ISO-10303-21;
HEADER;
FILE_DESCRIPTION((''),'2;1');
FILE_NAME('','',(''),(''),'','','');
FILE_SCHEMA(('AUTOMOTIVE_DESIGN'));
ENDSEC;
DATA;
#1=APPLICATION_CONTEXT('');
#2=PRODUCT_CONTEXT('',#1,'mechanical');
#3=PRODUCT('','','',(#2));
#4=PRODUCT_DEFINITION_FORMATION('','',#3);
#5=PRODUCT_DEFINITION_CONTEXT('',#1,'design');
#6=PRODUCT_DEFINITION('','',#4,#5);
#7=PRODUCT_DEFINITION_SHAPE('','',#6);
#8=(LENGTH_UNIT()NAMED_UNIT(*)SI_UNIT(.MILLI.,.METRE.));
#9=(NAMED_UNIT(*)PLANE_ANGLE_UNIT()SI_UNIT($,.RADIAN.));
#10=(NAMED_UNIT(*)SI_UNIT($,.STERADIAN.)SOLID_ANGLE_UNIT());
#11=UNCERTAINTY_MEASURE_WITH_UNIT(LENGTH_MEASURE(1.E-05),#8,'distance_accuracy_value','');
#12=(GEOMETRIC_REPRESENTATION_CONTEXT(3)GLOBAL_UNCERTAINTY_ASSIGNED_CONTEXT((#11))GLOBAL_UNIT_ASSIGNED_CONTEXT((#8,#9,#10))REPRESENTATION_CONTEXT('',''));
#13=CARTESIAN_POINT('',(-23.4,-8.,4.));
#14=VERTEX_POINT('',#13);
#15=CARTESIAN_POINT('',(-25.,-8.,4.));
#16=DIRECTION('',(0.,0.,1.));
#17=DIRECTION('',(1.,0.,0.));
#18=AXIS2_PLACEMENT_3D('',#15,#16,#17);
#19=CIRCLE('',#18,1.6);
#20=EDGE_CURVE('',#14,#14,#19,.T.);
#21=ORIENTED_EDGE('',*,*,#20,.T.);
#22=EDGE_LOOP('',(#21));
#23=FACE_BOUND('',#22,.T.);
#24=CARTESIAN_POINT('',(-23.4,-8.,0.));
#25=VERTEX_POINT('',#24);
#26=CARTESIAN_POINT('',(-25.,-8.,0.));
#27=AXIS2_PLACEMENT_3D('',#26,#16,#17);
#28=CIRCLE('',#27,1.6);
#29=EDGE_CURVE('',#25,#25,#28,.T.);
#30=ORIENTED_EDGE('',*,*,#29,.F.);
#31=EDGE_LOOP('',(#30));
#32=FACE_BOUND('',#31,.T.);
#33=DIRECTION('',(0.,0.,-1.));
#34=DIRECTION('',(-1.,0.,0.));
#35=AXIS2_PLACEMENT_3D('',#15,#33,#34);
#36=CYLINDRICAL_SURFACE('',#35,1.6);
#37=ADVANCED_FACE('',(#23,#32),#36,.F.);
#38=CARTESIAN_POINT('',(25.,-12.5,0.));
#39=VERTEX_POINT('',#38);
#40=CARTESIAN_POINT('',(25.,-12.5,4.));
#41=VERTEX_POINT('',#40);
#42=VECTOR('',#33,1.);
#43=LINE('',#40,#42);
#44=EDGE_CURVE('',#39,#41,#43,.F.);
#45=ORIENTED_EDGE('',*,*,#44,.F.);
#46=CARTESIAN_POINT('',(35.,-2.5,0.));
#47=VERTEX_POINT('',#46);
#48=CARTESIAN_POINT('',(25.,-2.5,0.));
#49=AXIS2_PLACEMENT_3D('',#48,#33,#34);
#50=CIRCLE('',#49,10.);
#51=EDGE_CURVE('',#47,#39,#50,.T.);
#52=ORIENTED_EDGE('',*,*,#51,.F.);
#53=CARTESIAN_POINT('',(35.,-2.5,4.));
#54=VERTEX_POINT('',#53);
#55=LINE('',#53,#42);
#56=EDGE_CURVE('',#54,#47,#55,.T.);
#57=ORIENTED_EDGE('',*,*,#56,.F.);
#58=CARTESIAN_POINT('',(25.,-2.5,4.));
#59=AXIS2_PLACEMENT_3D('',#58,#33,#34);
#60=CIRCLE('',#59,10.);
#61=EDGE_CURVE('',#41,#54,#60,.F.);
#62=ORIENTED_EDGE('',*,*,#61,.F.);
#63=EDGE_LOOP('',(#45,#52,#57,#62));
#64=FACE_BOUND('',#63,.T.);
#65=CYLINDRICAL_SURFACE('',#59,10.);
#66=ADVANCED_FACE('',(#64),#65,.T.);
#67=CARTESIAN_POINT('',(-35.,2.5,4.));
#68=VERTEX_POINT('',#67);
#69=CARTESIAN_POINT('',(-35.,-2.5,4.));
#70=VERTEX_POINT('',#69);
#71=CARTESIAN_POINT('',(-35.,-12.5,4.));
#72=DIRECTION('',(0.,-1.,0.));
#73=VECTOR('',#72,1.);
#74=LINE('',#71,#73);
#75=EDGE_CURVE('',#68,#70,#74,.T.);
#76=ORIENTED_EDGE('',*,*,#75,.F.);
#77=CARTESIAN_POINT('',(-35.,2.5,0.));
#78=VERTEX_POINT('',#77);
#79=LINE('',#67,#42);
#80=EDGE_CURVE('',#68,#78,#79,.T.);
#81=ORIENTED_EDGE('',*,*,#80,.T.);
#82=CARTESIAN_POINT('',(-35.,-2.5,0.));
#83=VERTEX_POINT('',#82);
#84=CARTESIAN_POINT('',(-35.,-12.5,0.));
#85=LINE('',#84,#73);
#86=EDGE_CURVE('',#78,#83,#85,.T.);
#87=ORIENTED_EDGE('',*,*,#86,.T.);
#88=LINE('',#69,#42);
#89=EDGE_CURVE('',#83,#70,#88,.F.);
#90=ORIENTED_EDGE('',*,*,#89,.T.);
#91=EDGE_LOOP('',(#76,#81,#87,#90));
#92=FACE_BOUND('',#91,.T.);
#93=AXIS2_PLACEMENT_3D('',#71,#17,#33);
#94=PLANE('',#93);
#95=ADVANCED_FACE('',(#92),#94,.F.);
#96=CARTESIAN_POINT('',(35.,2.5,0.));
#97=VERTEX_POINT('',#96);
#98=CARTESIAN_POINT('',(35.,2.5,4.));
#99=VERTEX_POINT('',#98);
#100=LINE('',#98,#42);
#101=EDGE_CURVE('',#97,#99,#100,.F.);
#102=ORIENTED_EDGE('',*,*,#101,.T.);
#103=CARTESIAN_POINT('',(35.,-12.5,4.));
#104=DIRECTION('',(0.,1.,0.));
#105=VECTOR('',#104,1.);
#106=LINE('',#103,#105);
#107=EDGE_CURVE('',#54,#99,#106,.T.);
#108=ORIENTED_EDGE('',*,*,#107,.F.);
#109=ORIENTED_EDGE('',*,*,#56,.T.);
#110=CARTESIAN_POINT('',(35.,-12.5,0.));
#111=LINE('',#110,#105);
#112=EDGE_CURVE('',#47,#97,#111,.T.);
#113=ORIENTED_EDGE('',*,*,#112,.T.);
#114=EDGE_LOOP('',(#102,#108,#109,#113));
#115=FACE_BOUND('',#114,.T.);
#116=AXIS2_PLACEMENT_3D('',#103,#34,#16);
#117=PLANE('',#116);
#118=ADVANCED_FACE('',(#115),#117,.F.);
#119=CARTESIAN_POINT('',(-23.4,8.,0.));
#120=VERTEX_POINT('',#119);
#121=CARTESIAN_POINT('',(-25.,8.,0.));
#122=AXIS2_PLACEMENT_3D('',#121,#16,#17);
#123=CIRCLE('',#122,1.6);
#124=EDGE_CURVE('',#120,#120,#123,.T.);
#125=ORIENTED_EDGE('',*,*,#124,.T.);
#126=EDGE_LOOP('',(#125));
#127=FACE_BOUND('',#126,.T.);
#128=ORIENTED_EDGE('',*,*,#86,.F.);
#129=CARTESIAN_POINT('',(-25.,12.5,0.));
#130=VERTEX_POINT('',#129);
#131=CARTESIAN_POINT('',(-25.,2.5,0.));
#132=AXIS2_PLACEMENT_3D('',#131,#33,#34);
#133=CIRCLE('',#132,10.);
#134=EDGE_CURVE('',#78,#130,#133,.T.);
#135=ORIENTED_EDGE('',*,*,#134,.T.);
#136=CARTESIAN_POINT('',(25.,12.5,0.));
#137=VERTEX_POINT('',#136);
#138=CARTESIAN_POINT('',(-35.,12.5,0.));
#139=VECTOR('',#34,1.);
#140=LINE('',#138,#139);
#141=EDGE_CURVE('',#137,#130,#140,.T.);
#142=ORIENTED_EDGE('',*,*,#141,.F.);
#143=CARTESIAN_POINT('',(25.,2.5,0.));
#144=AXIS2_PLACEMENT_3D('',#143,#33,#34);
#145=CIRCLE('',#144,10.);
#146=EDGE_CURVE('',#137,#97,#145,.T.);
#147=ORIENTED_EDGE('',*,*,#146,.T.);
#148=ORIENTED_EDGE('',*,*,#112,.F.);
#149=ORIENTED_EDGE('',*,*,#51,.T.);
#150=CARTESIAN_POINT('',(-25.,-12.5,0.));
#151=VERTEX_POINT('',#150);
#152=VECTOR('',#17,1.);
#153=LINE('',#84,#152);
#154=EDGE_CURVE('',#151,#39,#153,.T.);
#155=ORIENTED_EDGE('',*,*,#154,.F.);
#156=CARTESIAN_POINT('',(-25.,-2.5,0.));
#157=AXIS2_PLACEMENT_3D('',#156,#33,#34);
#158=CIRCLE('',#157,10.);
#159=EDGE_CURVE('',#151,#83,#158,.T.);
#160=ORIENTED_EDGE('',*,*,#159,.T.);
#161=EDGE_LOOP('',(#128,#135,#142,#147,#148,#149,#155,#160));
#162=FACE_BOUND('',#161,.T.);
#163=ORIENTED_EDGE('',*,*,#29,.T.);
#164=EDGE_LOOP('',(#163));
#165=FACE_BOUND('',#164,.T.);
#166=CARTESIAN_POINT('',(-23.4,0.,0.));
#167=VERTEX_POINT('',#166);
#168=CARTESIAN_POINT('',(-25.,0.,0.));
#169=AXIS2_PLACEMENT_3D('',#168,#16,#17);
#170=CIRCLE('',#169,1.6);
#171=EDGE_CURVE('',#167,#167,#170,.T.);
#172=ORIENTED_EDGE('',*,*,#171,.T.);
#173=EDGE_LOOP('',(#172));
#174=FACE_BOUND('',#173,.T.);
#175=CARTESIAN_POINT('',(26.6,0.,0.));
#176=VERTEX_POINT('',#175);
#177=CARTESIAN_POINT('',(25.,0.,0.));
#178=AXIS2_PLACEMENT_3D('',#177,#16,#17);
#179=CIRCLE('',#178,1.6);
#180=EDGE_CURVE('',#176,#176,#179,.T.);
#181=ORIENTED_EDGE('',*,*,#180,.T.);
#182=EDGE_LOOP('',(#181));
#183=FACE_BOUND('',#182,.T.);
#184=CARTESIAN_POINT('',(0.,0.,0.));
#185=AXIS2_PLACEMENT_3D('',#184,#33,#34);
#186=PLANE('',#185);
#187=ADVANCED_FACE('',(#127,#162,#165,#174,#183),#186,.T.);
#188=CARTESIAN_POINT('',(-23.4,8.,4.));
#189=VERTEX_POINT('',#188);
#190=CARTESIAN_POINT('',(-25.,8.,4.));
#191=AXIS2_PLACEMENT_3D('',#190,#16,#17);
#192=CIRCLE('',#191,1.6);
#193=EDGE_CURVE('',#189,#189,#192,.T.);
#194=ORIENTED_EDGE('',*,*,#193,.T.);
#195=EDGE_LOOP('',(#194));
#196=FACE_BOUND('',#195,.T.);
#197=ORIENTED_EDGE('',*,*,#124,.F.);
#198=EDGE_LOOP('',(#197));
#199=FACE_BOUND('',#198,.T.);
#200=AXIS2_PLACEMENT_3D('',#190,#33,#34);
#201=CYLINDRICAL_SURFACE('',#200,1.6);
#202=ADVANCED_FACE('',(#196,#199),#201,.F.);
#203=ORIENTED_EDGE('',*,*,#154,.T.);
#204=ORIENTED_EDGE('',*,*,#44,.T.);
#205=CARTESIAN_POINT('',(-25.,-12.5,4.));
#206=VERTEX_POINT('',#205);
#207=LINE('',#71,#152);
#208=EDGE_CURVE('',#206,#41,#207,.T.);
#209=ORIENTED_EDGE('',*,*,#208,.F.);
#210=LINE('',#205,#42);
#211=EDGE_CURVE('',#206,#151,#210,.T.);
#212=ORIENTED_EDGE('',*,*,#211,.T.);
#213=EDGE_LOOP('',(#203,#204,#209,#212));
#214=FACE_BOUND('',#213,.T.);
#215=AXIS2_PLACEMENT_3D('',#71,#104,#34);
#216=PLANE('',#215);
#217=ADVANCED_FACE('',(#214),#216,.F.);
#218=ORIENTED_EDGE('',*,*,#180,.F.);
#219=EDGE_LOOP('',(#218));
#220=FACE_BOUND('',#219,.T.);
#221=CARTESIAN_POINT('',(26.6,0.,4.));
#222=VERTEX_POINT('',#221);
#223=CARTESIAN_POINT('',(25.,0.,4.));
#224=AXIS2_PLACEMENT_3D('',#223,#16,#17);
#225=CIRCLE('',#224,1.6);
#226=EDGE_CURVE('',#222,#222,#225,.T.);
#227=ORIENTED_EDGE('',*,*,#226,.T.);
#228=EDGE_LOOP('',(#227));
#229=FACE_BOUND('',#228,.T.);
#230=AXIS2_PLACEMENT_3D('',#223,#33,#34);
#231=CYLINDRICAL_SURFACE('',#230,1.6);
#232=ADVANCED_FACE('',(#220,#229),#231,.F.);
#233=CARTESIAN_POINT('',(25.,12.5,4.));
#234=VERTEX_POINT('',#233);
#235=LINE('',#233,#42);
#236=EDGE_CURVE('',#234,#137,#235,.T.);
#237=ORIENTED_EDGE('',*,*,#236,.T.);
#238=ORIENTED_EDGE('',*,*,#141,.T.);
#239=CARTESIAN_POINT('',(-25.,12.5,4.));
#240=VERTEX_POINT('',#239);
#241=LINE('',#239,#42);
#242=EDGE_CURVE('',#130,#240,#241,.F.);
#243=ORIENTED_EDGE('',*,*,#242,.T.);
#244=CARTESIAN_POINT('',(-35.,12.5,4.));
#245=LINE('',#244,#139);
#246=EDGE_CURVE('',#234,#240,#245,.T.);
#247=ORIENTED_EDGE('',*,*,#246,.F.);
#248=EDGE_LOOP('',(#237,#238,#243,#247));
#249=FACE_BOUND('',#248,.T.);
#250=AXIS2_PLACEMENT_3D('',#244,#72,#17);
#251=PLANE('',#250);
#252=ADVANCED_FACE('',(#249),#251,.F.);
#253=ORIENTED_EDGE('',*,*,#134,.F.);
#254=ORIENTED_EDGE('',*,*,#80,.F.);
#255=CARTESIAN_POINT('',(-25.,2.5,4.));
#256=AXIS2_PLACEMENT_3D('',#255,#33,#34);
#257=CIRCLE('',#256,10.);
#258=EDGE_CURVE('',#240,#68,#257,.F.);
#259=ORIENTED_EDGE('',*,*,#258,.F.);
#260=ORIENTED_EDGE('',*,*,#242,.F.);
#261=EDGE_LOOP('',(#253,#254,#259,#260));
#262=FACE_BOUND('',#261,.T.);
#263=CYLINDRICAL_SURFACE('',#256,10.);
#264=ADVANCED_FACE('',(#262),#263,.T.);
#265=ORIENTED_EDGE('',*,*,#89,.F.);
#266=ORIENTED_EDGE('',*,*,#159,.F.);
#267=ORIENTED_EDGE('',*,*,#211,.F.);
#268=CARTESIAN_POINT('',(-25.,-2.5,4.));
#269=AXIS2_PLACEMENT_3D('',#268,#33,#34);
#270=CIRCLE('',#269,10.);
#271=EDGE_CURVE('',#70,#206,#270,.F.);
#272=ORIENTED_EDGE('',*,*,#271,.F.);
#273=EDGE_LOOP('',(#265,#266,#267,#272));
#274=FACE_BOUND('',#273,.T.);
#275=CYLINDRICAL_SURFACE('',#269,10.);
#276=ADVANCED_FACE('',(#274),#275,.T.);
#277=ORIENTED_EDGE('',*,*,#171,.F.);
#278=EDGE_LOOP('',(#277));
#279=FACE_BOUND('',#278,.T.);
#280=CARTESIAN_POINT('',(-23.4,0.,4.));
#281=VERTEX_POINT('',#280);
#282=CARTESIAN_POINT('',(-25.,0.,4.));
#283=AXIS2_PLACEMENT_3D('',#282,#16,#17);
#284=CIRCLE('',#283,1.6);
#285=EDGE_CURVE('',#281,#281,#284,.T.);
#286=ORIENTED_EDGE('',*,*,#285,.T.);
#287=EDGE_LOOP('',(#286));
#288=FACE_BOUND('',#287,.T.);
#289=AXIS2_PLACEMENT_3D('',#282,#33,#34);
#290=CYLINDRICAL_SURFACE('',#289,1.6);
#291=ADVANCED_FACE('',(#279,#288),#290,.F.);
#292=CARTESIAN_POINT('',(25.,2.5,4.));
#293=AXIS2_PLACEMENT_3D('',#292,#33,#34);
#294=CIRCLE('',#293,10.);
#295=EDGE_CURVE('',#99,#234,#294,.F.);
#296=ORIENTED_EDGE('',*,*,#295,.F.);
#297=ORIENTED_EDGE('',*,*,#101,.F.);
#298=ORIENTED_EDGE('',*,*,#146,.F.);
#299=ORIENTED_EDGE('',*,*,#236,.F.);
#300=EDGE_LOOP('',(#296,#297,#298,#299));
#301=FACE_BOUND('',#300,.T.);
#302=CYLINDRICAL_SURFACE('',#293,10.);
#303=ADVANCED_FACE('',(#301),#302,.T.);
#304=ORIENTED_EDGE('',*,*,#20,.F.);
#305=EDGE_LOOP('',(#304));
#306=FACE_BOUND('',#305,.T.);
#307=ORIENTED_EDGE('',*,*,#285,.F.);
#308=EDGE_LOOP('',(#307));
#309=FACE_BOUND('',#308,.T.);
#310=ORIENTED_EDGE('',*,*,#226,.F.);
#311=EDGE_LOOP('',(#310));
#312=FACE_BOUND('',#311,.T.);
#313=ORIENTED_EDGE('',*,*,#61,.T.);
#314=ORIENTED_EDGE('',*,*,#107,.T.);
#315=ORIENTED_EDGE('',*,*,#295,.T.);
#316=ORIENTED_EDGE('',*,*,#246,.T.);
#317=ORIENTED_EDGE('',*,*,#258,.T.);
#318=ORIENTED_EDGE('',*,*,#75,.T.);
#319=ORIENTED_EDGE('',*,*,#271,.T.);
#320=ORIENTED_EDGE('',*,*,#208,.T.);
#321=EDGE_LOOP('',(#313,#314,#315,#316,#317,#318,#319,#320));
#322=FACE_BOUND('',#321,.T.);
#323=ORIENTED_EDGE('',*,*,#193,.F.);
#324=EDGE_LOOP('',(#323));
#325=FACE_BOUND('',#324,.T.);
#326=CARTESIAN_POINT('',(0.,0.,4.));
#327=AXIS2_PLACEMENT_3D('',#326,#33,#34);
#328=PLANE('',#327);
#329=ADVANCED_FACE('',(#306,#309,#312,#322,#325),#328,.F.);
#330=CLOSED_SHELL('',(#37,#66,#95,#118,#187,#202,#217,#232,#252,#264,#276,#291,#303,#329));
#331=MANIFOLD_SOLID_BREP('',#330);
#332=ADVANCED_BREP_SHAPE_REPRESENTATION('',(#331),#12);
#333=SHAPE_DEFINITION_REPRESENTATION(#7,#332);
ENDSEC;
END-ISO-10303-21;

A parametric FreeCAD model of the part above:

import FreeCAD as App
import Part
import Sketcher
from FreeCAD import Vector
Q = App.Units.Quantity


def edges_at(feature, points):
    """Names of the edges that pass closest to the given points."""
    edges = feature.Shape.Edges
    near = lambda p: min(range(len(edges)), key=lambda i: edges[i].distToShape(Part.Vertex(*p))[0])
    return sorted({f"Edge{near(p) + 1}" for p in points})

doc = App.newDocument("Part")
body = doc.addObject("PartDesign::Body", "Body")

# Sketch on XY plane
sketch1 = body.newObject("Sketcher::SketchObject", "Sketch")
sketch1.AttachmentSupport = (doc.getObject("XY_Plane"), [""])
sketch1.MapMode = "FlatFace"
sketch1.addGeometry(Part.LineSegment(Vector(-35, 12.5, 0), Vector(-35, -12.5, 0)), False)
sketch1.addGeometry(Part.LineSegment(Vector(-35, -12.5, 0), Vector(35, -12.5, 0)), False)
sketch1.addGeometry(Part.LineSegment(Vector(35, -12.5, 0), Vector(35, 12.5, 0)), False)
sketch1.addGeometry(Part.LineSegment(Vector(35, 12.5, 0), Vector(-35, 12.5, 0)), False)
sketch1.addGeometry(Part.Circle(Vector(-25, -8, 0), Vector(0, 0, 1), 1.6), False)
sketch1.addGeometry(Part.Circle(Vector(-25, 0, 0), Vector(0, 0, 1), 1.6), False)
sketch1.addGeometry(Part.Circle(Vector(-25, 8, 0), Vector(0, 0, 1), 1.6), False)
sketch1.addGeometry(Part.Circle(Vector(25, 0, 0), Vector(0, 0, 1), 1.6), False)
sketch1.addConstraint(Sketcher.Constraint("Coincident", 0, 2, 1, 1))
sketch1.addConstraint(Sketcher.Constraint("Coincident", 1, 2, 2, 1))
sketch1.addConstraint(Sketcher.Constraint("Coincident", 2, 2, 3, 1))
sketch1.addConstraint(Sketcher.Constraint("Coincident", 3, 2, 0, 1))
sketch1.addConstraint(Sketcher.Constraint("Vertical", 0))
sketch1.addConstraint(Sketcher.Constraint("Horizontal", 1))
sketch1.addConstraint(Sketcher.Constraint("Vertical", 2))
sketch1.addConstraint(Sketcher.Constraint("Horizontal", 3))
sketch1.addConstraint(Sketcher.Constraint("Equal", 4, 5))
sketch1.addConstraint(Sketcher.Constraint("Equal", 5, 6))
sketch1.addConstraint(Sketcher.Constraint("Equal", 6, 7))
sketch1.addConstraint(Sketcher.Constraint("Symmetric", 5, 3, 7, 3, -1, 1))
sketch1.addConstraint(Sketcher.Constraint("Symmetric", 0, 2, 2, 2, -1, 1))
sketch1.addConstraint(Sketcher.Constraint("Symmetric", 4, 3, 6, 3, -1))
sketch1.addConstraint(Sketcher.Constraint("PointOnObject", 5, 3, -1))
sketch1.addConstraint(Sketcher.Constraint("Vertical", 4, 3, 5, 3))
sketch1.addConstraint(Sketcher.Constraint("Diameter", 4, Q("3.2 mm")))
sketch1.addConstraint(Sketcher.Constraint("DistanceX", 1, 1, 1, 2, Q("70 mm")))
sketch1.addConstraint(Sketcher.Constraint("DistanceY", 0, 2, 0, 1, Q("25 mm")))
sketch1.addConstraint(Sketcher.Constraint("DistanceX", 4, 3, -1, 1, Q("25 mm")))
sketch1.addConstraint(Sketcher.Constraint("DistanceY", 4, 3, -1, 1, Q("8 mm")))
pad1 = body.newObject("PartDesign::Pad", "Pad")
pad1.Profile = sketch1
pad1.Length = 4
doc.recompute()

fillet = body.newObject("PartDesign::Fillet", "Fillet")
fillet.Base = (pad1, edges_at(pad1, [
    (35, -12.5, 2),
    (-35, -12.5, 2),
    (-35, 12.5, 2),
    (35, 12.5, 2),
]))
fillet.Radius = 10

doc.recompute()
